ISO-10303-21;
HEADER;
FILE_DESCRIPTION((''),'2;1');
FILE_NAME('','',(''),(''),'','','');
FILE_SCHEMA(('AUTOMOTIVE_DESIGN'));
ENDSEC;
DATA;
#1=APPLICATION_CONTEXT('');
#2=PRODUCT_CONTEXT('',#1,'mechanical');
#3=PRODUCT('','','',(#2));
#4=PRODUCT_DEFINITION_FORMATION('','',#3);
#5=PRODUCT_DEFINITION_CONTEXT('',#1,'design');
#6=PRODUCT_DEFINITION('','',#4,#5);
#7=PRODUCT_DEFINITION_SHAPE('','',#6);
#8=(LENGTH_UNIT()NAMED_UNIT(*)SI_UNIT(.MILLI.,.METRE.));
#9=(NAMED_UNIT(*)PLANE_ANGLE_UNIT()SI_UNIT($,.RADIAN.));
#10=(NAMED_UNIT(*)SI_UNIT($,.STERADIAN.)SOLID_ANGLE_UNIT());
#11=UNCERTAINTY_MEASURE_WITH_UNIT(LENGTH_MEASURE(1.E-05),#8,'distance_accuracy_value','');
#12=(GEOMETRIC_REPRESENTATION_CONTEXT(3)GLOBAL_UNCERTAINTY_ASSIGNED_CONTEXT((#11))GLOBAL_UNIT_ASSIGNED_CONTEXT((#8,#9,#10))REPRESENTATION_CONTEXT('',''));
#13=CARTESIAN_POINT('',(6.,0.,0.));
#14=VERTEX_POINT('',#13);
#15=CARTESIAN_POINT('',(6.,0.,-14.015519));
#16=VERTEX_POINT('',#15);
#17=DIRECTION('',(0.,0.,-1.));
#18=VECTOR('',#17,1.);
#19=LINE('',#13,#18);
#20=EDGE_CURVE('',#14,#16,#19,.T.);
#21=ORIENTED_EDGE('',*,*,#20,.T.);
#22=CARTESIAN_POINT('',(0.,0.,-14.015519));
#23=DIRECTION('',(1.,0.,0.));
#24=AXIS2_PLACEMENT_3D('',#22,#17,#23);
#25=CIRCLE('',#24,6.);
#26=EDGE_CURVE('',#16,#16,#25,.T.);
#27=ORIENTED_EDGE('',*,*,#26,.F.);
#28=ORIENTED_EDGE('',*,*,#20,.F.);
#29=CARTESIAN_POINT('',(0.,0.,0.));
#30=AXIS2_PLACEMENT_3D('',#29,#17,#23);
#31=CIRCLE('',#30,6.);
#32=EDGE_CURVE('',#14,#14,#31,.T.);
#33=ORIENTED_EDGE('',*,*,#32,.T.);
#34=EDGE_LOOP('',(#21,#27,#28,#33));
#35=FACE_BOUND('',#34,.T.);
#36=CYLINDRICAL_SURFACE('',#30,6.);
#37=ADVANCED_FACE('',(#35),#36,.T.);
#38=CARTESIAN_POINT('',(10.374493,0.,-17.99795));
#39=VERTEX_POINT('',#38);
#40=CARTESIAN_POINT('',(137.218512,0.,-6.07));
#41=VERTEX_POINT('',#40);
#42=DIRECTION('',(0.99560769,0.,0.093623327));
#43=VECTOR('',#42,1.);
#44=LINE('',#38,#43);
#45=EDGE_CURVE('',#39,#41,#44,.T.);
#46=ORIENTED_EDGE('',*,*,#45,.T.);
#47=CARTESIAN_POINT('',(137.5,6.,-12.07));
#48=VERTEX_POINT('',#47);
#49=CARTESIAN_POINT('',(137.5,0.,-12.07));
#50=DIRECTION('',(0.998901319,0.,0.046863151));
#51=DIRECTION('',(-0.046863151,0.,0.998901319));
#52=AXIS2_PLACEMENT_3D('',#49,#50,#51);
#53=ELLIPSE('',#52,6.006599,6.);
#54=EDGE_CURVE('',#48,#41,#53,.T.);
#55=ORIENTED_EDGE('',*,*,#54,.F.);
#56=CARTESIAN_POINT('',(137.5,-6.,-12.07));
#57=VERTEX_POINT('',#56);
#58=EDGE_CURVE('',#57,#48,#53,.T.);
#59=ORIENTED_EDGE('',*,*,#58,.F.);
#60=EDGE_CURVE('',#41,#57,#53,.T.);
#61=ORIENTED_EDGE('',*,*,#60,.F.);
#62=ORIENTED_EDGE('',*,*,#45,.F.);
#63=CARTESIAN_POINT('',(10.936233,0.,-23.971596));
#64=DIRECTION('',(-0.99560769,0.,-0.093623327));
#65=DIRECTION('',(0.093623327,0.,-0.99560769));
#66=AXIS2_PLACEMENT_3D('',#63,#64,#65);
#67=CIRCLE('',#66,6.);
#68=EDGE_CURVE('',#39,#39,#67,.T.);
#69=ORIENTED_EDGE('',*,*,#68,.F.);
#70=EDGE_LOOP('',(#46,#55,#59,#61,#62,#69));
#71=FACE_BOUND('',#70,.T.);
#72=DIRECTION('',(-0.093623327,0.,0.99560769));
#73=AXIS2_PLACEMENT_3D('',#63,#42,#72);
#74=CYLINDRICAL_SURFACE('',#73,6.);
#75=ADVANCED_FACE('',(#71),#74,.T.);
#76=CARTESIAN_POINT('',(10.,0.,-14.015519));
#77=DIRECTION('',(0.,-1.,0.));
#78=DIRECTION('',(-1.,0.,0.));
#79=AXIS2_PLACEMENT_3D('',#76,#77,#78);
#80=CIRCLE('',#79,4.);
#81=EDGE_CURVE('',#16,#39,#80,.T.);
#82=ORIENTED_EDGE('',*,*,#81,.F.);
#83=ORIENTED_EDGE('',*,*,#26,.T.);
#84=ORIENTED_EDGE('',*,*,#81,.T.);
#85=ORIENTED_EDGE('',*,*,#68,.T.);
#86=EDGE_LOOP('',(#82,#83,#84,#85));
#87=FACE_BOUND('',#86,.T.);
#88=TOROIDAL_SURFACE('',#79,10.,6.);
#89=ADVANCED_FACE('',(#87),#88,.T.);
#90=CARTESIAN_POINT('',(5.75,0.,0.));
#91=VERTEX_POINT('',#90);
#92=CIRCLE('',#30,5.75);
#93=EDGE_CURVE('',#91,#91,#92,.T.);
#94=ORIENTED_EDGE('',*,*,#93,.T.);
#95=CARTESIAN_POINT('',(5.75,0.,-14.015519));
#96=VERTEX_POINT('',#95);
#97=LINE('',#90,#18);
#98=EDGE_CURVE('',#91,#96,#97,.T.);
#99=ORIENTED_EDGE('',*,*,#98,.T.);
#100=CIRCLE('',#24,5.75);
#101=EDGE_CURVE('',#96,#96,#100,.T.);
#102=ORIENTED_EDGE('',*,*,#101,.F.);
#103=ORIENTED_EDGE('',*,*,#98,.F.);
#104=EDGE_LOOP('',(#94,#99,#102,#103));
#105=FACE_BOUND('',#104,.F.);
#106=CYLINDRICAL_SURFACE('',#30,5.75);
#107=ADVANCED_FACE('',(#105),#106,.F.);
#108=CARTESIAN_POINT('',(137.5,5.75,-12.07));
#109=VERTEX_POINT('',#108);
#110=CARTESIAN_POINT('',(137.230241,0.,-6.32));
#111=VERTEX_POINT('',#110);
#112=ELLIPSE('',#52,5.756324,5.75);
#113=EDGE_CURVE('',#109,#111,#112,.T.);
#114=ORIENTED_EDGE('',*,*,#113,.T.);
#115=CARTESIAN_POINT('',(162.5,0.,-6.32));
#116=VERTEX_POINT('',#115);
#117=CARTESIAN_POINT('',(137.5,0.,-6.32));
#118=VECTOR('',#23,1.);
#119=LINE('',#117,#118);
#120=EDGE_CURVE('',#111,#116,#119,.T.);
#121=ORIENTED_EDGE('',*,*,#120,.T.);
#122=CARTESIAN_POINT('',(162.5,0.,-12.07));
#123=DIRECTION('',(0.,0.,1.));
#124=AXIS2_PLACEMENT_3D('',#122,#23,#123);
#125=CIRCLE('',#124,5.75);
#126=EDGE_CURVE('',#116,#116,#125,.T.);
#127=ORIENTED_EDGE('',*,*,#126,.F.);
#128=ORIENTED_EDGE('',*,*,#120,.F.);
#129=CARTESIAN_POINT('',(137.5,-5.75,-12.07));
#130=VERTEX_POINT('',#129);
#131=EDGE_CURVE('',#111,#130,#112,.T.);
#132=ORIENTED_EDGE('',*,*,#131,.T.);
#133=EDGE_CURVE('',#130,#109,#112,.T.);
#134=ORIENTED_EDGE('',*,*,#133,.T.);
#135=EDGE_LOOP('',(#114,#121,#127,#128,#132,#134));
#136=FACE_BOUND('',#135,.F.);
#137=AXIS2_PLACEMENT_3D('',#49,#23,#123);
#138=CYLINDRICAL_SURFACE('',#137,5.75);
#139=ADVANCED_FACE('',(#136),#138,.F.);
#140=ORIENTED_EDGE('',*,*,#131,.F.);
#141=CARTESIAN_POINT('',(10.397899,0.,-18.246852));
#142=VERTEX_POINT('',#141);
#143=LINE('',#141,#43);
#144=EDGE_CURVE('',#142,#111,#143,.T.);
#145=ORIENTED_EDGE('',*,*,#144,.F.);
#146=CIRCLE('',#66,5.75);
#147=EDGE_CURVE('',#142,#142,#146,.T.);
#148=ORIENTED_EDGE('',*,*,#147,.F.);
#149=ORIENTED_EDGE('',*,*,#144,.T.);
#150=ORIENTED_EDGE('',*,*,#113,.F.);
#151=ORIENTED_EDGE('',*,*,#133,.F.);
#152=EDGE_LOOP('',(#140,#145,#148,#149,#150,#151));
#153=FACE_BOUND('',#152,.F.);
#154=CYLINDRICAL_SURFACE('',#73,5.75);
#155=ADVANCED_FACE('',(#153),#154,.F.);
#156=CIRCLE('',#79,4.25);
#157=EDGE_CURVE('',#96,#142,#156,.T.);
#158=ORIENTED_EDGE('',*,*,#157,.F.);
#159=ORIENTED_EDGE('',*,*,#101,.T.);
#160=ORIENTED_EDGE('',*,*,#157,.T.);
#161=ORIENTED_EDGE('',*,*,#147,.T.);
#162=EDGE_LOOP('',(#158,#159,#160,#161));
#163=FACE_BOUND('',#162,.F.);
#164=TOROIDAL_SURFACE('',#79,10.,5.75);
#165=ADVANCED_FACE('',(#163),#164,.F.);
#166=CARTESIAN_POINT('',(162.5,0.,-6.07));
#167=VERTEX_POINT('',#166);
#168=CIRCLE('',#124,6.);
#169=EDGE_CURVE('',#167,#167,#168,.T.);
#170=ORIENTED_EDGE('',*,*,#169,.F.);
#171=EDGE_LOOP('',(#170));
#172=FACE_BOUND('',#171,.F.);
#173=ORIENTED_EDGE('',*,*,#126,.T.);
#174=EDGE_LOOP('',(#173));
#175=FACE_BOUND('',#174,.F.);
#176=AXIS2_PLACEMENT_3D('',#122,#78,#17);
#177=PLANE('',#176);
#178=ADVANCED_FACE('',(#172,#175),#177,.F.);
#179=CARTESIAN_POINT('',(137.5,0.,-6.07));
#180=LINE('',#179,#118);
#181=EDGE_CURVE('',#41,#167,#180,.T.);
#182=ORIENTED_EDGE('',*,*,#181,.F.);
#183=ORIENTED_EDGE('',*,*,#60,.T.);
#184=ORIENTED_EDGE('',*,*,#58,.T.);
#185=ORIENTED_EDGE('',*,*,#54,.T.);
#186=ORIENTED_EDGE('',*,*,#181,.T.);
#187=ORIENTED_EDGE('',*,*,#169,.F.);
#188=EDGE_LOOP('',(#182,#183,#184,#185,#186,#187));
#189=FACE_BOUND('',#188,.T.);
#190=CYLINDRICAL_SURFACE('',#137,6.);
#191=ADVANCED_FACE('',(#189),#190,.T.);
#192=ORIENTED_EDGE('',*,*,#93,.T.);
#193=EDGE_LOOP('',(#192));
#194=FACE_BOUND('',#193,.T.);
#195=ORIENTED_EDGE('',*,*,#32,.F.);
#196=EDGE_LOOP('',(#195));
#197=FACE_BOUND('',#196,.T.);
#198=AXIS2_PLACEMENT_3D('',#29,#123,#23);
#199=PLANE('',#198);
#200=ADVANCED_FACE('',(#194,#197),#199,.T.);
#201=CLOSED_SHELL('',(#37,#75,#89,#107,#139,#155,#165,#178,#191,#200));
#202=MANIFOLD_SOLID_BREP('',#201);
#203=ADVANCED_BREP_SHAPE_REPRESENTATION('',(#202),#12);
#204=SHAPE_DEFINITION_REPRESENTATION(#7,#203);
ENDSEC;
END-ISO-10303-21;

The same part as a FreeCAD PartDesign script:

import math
import FreeCAD as App
import Part
import Sketcher
from FreeCAD import Vector
Q = App.Units.Quantity

doc = App.newDocument("Part")
body = doc.addObject("PartDesign::Body", "Body")

# Sketch on XY plane
sketch1 = body.newObject("Sketcher::SketchObject", "Sketch")
sketch1.AttachmentSupport = (doc.getObject("XY_Plane"), [""])
sketch1.MapMode = "FlatFace"
sketch1.addGeometry([
    Part.Circle(Vector(0, 0, 0), Vector(0, 0, 1), 6),
    Part.Circle(Vector(0, 0, 0), Vector(0, 0, 1), 6),
], False)
sketch1.addConstraint([
    Sketcher.Constraint("Coincident", 0, 3, -1, 1),
    Sketcher.Constraint("Coincident", 1, 3, -1, 1),
    Sketcher.Constraint("Diameter", 0, Q("12 mm")),
    Sketcher.Constraint("Diameter", 1, Q("11.5 mm")),
])

# Sketch on XZ plane
sketch2 = body.newObject("Sketcher::SketchObject", "Sketch001")
sketch2.AttachmentSupport = (doc.getObject("XZ_Plane"), [""])
sketch2.MapMode = "FlatFace"
sketch2.addGeometry([
    Part.LineSegment(Vector(0, 0, 0), Vector(0, -14, 0)),
    Part.ArcOfCircle(Part.Circle(Vector(10, -14, 0), Vector(0, 0, 1), 10), math.radians(180), math.radians(275)),
    Part.LineSegment(Vector(11, -24, 0), Vector(138, -12, 0)),
    Part.LineSegment(Vector(138, -12, 0), Vector(162, -12, 0)),
], False)
sketch2.addConstraint([
    Sketcher.Constraint("Tangent", 0, 2, 1, 1),
    Sketcher.Constraint("Tangent", 1, 2, 2, 1),
    Sketcher.Constraint("Coincident", 2, 2, 3, 1),
    Sketcher.Constraint("Vertical", 0),
    Sketcher.Constraint("Horizontal", 3),
    Sketcher.Constraint("Coincident", 0, 1, -1, 1),
    Sketcher.Constraint("Radius", 1, Q("10 mm")),
    Sketcher.Constraint("DistanceX", 3, 1, 3, 2, Q("25 mm")),
    Sketcher.Constraint("DistanceX", -1, 1, 2, 2, Q("137.5 mm")),
    Sketcher.Constraint("DistanceY", 2, 2, -1, 1, Q("12.07 mm")),
    Sketcher.Constraint("DistanceY", 0, 2, 0, 1, Q("14.015519 mm")),
])
doc.recompute()

additivepipe = body.newObject("PartDesign::AdditivePipe", "AdditivePipe")
additivepipe.Profile = sketch1
additivepipe.Spine = (sketch2, ["Edge1", "Edge2", "Edge3", "Edge4"])
additivepipe.Transition = "Right corner"

doc.recompute()
